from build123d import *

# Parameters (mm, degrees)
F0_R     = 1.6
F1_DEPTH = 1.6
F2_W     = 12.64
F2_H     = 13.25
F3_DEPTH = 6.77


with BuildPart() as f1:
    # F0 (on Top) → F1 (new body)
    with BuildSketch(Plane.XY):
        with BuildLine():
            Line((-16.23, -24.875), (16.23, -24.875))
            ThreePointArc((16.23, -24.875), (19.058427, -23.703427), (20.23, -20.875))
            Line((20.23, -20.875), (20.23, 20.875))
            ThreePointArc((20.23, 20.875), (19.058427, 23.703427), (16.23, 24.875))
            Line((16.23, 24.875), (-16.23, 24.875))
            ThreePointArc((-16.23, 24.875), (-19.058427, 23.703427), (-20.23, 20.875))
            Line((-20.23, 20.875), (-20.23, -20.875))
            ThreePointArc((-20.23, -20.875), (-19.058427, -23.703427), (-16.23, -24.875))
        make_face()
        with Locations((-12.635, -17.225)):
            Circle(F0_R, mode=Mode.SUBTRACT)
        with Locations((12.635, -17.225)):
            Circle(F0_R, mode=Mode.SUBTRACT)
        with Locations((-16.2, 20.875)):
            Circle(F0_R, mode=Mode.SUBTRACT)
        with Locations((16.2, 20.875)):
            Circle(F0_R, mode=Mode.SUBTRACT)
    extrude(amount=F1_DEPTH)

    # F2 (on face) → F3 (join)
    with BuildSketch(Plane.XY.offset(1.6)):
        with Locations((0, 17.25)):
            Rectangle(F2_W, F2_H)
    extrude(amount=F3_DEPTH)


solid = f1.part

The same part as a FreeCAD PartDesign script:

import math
import FreeCAD as App
import Part
import Sketcher
from FreeCAD import Vector


def add_polygon(sketch, points):
    """Adds a closed chain of lines whose ends are joined by coincident constraints."""
    first, n = sketch.GeometryCount, len(points)
    for a, b in zip(points, points[1:] + points[:1]):
        sketch.addGeometry(Part.LineSegment(App.Vector(*a, 0), App.Vector(*b, 0)), False)
    for i in range(n):
        sketch.addConstraint(Sketcher.Constraint("Coincident", first + i, 2, first + (i + 1) % n, 1))

doc = App.newDocument("Part")
body = doc.addObject("PartDesign::Body", "Body")

# Sketch on XY plane
sketch1 = doc.addObject("Sketcher::SketchObject", "Sketch")
body.addObject(sketch1)
sketch1.AttachmentSupport = (doc.XY_Plane, [""])
sketch1.MapMode = "FlatFace"
sketch1.addGeometry(Part.LineSegment(Vector(-16.2, -24.9, 0), Vector(16.2, -24.9, 0)), False)
sketch1.addGeometry(Part.ArcOfCircle(Part.Circle(Vector(16.2, -20.9, 0), Vector(0, 0, 1), 4), math.radians(-90), math.radians(0)), False)
sketch1.addGeometry(Part.LineSegment(Vector(20.2, -20.9, 0), Vector(20.2, 20.9, 0)), False)
sketch1.addGeometry(Part.ArcOfCircle(Part.Circle(Vector(16.2, 20.9, 0), Vector(0, 0, 1), 4), math.radians(0), math.radians(90)), False)
sketch1.addGeometry(Part.LineSegment(Vector(16.2, 24.9, 0), Vector(-16.2, 24.9, 0)), False)
sketch1.addGeometry(Part.ArcOfCircle(Part.Circle(Vector(-16.2, 20.9, 0), Vector(0, 0, 1), 4), math.radians(90), math.radians(180)), False)
sketch1.addGeometry(Part.LineSegment(Vector(-20.2, 20.9, 0), Vector(-20.2, -20.9, 0)), False)
sketch1.addGeometry(Part.ArcOfCircle(Part.Circle(Vector(-16.2, -20.9, 0), Vector(0, 0, 1), 4), math.radians(-180), math.radians(-90)), False)
sketch1.addGeometry(Part.Circle(Vector(-12.6, -17.2, 0), Vector(0, 0, 1), 1.6), False)
sketch1.addGeometry(Part.Circle(Vector(12.6, -17.2, 0), Vector(0, 0, 1), 1.6), False)
sketch1.addGeometry(Part.Circle(Vector(-16.2, 20.9, 0), Vector(0, 0, 1), 1.6), False)
sketch1.addGeometry(Part.Circle(Vector(16.2, 20.9, 0), Vector(0, 0, 1), 1.6), False)
sketch1.addConstraint(Sketcher.Constraint("Tangent", 0, 2, 1, 1))
sketch1.addConstraint(Sketcher.Constraint("Tangent", 1, 2, 2, 1))
sketch1.addConstraint(Sketcher.Constraint("Tangent", 2, 2, 3, 1))
sketch1.addConstraint(Sketcher.Constraint("Tangent", 3, 2, 4, 1))
sketch1.addConstraint(Sketcher.Constraint("Tangent", 4, 2, 5, 1))
sketch1.addConstraint(Sketcher.Constraint("Tangent", 5, 2, 6, 1))
sketch1.addConstraint(Sketcher.Constraint("Tangent", 6, 2, 7, 1))
sketch1.addConstraint(Sketcher.Constraint("Tangent", 7, 2, 0, 1))
sketch1.addConstraint(Sketcher.Constraint("Horizontal", 0))
sketch1.addConstraint(Sketcher.Constraint("Vertical", 2))
sketch1.addConstraint(Sketcher.Constraint("Horizontal", 4))
sketch1.addConstraint(Sketcher.Constraint("Vertical", 6))
sketch1.addConstraint(Sketcher.Constraint("Equal", 1, 3))
sketch1.addConstraint(Sketcher.Constraint("Equal", 3, 5))
sketch1.addConstraint(Sketcher.Constraint("Equal", 5, 7))
sketch1.addConstraint(Sketcher.Constraint("Equal", 8, 9))
sketch1.addConstraint(Sketcher.Constraint("Equal", 9, 10))
sketch1.addConstraint(Sketcher.Constraint("Equal", 10, 11))
sketch1.addConstraint(Sketcher.Constraint("Symmetric", 1, 3, 5, 3, -1, 1))
sketch1.addConstraint(Sketcher.Constraint("Symmetric", 8, 3, 9, 3, -2))
sketch1.addConstraint(Sketcher.Constraint("Symmetric", 10, 3, 11, 3, -2))
sketch1.addConstraint(Sketcher.Constraint("Horizontal", 5, 3, 10, 3))
sketch1.addConstraint(Sketcher.Constraint("Radius", 1, 4.0))
sketch1.addConstraint(Sketcher.Constraint("Diameter", 8, 3.2))
sketch1.addConstraint(Sketcher.Constraint("DistanceX", 0, 1, 0, 2, 32.46))
sketch1.addConstraint(Sketcher.Constraint("DistanceY", 2, 1, 2, 2, 41.75))
sketch1.addConstraint(Sketcher.Constraint("DistanceX", 10, 3, -1, 1, 16.2))
sketch1.addConstraint(Sketcher.Constraint("DistanceY", 8, 3, 5, 3, 38.1))
sketch1.addConstraint(Sketcher.Constraint("DistanceX", 8, 3, 9, 3, 25.27))
pad1 = doc.addObject("PartDesign::Pad", "Pad")
body.addObject(pad1)
pad1.Profile = sketch1
pad1.Length = 1.6

# Sketch on XY plane
sketch2 = doc.addObject("Sketcher::SketchObject", "Sketch001")
body.addObject(sketch2)
sketch2.AttachmentSupport = (doc.XY_Plane, [""])
sketch2.MapMode = "FlatFace"
sketch2.AttachmentOffset = App.Placement(Vector(0, 0, 1.6), App.Rotation())
add_polygon(sketch2, [(-6, 24), (-6, 11), (6, 11), (6, 24)])  # lines 0-3
sketch2.addConstraint(Sketcher.Constraint("Vertical", 0))
sketch2.addConstraint(Sketcher.Constraint("Horizontal", 1))
sketch2.addConstraint(Sketcher.Constraint("Vertical", 2))
sketch2.addConstraint(Sketcher.Constraint("Horizontal", 3))
sketch2.addConstraint(Sketcher.Constraint("DistanceX", 1, 1, 1, 2, 12.64))
sketch2.addConstraint(Sketcher.Constraint("DistanceY", 0, 2, 0, 1, 13.25))
sketch2.addConstraint(Sketcher.Constraint("DistanceX", 0, 2, -1, 1, 6.32))
sketch2.addConstraint(Sketcher.Constraint("DistanceY", -1, 1, 0, 2, 10.625))
pad2 = doc.addObject("PartDesign::Pad", "Pad001")
body.addObject(pad2)
pad2.Profile = sketch2
pad2.Length = 6.77

doc.recompute()
